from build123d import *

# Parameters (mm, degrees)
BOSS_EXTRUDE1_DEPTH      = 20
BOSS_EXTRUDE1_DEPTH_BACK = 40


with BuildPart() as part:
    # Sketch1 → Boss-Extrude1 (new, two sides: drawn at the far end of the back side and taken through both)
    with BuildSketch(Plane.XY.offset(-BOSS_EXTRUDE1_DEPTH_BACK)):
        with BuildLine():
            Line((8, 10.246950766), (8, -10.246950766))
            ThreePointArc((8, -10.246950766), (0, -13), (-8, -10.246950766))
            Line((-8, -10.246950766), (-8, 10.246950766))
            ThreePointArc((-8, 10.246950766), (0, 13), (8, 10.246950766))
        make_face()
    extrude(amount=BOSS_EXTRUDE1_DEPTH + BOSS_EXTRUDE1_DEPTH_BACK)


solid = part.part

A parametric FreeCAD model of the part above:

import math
import FreeCAD as App
import Part
import Sketcher

V = App.Vector
Q = App.Units.Quantity

doc = App.newDocument("Part")
body = doc.addObject("PartDesign::Body", "Body")

sketch1 = body.newObject("Sketcher::SketchObject", "Sketch")
sketch1.AttachmentSupport = (doc.getObject("XY_Plane"), [""])
sketch1.MapMode = "FlatFace"
sketch1.addGeometry(Part.LineSegment(V(8, -10.246951, 0), V(8, 10.246951, 0)), False)
sketch1.addGeometry(Part.ArcOfCircle(Part.Circle(V(0, 0, 0), V(0, 0, 1), 13), math.radians(52.020128), math.radians(127.979872)), False)
sketch1.addGeometry(Part.LineSegment(V(-8, 10.246951, 0), V(-8, -10.246951, 0)), False)
sketch1.addGeometry(Part.ArcOfCircle(Part.Circle(V(0, 0, 0), V(0, 0, 1), 13), math.radians(-127.979872), math.radians(-52.020128)), False)
sketch1.addConstraint(Sketcher.Constraint("Coincident", 0, 2, 1, 1))
sketch1.addConstraint(Sketcher.Constraint("Coincident", 1, 2, 2, 1))
sketch1.addConstraint(Sketcher.Constraint("Coincident", 2, 2, 3, 1))
sketch1.addConstraint(Sketcher.Constraint("Coincident", 3, 2, 0, 1))
sketch1.addConstraint(Sketcher.Constraint("Vertical", 0))
sketch1.addConstraint(Sketcher.Constraint("Vertical", 2))
sketch1.addConstraint(Sketcher.Constraint("Coincident", 1, 3, -1, 1))
sketch1.addConstraint(Sketcher.Constraint("Coincident", 3, 3, -1, 1))
sketch1.addConstraint(Sketcher.Constraint("Equal", 1, 3))
sketch1.addConstraint(Sketcher.Constraint("Horizontal", 0, 2, 1, 2))
sketch1.addConstraint(Sketcher.Constraint("Radius", 1, Q("13 mm")))
sketch1.addConstraint(Sketcher.Constraint("DistanceX", -1, 1, 0, 2, Q("8 mm")))
pad1 = body.newObject("PartDesign::Pad", "Pad")
pad1.Profile = sketch1
pad1.Type = "TwoLengths"
pad1.Length = 20
pad1.Length2 = 40

doc.recompute()
